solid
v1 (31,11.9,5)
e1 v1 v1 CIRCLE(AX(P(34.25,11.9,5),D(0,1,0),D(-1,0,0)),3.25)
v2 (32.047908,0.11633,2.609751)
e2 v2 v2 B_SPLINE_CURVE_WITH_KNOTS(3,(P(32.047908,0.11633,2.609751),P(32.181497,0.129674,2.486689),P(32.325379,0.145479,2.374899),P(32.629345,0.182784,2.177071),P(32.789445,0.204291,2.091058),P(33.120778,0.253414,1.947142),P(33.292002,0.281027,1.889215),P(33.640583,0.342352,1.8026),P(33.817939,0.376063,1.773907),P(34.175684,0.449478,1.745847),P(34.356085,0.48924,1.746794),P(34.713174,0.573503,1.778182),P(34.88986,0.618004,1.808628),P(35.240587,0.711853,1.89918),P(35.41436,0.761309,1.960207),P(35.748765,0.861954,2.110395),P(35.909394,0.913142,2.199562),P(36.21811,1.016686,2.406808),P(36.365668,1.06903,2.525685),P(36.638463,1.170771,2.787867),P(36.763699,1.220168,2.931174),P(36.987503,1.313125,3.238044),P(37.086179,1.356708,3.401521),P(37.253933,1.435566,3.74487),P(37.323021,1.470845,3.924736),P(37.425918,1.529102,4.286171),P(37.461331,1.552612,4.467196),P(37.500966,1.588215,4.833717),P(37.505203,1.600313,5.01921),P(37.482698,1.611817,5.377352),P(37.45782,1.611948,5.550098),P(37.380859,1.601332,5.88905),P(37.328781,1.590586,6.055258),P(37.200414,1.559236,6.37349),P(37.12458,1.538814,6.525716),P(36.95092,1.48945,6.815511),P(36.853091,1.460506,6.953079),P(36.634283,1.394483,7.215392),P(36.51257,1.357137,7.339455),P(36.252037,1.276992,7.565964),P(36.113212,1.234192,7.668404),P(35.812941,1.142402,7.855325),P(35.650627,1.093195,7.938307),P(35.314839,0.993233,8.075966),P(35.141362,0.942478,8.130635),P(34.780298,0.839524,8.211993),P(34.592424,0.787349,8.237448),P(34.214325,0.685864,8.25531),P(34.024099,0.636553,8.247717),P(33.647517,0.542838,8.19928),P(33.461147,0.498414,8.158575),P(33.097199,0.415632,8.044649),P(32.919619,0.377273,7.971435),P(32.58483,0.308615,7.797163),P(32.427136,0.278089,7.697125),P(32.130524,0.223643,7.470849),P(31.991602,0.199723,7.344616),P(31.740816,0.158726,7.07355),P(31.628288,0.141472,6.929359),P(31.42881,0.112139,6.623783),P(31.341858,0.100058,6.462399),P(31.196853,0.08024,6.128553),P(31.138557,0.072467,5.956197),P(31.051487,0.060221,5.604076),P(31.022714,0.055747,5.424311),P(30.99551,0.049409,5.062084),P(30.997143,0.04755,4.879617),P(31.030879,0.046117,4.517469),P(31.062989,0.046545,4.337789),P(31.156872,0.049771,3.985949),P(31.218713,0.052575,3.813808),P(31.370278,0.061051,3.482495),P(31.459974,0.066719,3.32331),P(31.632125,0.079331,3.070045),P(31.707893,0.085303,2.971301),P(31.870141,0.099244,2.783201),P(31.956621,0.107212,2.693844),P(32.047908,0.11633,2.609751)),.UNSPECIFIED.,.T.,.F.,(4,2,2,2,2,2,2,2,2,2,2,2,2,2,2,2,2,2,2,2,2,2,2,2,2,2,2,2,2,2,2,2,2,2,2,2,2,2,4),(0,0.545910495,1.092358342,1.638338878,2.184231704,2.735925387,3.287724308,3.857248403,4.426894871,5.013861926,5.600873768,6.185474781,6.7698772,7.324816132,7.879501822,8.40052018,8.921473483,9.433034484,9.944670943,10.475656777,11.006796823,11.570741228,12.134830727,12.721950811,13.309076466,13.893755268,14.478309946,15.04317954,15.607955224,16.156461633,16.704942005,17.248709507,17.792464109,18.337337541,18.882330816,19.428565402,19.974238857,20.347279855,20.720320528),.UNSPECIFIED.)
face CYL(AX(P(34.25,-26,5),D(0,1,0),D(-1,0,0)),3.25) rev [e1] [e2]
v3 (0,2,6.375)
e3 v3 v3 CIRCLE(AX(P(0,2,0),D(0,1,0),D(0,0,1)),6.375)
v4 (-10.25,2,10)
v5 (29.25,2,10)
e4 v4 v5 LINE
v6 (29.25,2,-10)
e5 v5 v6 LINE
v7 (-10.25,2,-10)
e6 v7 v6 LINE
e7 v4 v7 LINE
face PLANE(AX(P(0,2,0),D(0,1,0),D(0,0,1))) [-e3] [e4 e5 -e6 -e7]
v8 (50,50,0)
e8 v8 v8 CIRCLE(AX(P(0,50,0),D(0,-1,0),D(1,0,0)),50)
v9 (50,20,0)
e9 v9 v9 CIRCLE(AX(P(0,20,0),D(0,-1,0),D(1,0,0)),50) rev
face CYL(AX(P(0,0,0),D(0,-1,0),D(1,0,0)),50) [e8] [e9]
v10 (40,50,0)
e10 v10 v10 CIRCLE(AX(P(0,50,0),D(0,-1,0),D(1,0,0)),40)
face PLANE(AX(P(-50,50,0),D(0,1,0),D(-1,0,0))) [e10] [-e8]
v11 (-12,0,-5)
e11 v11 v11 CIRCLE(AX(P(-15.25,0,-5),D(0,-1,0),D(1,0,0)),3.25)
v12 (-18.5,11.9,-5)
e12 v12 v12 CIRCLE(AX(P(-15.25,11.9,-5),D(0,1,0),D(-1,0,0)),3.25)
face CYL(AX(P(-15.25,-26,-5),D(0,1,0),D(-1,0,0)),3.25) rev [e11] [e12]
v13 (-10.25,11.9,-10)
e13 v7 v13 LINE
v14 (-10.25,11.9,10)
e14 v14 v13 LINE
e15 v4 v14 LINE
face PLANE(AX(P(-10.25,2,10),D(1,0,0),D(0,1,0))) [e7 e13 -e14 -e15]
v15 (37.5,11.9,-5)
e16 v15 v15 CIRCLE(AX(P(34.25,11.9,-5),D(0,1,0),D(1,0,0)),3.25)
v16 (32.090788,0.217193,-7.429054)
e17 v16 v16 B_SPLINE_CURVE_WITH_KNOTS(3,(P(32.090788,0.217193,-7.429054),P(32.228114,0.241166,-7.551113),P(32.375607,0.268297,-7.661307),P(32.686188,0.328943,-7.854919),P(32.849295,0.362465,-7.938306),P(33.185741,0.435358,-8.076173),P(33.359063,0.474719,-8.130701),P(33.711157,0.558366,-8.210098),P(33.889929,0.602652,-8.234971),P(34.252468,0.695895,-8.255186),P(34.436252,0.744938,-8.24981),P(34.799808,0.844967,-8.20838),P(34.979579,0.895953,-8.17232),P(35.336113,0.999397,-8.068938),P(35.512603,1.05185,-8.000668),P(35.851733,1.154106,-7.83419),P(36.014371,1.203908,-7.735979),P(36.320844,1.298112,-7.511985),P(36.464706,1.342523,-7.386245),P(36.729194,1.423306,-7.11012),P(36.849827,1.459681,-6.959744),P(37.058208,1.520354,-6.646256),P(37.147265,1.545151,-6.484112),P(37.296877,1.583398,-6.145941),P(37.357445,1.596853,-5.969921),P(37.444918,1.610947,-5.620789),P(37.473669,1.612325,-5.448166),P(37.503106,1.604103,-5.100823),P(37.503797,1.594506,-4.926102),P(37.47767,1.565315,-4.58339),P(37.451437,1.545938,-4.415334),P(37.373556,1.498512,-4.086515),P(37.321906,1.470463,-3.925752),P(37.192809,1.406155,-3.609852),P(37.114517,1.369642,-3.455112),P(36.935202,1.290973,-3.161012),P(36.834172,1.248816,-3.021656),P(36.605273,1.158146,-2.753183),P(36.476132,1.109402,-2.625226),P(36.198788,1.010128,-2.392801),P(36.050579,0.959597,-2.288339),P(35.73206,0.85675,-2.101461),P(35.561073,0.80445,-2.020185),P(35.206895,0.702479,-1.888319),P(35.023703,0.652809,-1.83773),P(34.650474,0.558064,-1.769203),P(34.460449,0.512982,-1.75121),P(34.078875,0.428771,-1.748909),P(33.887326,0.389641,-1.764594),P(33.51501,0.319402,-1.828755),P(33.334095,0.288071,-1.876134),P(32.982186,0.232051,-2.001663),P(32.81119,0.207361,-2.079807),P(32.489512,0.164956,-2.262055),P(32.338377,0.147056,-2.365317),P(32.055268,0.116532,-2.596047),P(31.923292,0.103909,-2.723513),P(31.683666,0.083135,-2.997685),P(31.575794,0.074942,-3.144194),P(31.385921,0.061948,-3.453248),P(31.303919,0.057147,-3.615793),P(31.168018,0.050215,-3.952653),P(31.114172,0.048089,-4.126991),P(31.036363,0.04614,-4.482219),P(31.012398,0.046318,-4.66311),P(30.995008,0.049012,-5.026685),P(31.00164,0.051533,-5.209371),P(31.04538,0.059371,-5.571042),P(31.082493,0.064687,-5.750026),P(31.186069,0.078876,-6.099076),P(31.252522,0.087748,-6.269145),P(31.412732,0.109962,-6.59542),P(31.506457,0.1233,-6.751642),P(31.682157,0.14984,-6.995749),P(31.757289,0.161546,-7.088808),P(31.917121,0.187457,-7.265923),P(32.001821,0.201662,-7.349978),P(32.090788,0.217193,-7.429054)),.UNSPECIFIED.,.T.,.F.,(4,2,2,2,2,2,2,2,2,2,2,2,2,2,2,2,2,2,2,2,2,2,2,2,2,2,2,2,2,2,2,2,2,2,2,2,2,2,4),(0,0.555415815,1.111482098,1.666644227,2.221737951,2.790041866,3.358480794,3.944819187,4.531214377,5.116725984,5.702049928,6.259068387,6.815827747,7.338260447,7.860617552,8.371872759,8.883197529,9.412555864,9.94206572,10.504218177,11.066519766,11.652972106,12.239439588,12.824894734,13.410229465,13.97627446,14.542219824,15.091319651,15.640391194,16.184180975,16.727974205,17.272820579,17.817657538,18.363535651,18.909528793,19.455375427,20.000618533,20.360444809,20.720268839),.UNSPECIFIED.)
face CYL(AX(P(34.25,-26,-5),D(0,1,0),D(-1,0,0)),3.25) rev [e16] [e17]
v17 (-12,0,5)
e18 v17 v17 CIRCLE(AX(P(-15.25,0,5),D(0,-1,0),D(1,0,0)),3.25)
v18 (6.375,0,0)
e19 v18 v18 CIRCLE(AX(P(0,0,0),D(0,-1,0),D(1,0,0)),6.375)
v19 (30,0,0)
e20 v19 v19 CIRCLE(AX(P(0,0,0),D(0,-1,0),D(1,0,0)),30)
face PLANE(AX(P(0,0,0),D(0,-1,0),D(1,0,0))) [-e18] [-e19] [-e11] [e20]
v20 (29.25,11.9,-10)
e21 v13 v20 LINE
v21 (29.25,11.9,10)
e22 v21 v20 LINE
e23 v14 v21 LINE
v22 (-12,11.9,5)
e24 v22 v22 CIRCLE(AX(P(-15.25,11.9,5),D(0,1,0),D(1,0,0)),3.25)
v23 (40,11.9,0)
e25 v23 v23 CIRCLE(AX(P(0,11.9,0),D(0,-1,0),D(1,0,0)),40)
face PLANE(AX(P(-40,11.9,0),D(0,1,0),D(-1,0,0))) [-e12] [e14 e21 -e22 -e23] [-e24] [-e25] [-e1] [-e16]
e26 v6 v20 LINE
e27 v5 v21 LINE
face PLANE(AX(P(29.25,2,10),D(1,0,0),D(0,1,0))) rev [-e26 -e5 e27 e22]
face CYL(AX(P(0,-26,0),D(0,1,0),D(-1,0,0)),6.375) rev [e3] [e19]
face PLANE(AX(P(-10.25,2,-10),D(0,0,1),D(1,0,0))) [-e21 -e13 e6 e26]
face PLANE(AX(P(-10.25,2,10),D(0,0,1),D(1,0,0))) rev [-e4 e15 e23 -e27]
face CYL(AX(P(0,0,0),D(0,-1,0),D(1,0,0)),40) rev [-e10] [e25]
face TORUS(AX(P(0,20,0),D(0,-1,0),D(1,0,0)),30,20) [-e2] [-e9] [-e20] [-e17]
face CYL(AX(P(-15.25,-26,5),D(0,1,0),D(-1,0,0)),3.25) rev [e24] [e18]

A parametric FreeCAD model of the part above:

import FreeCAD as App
import Part
import Sketcher
from FreeCAD import Vector


def edges_at(feature, points):
    """Names of the edges that pass closest to the given points."""
    edges = feature.Shape.Edges
    near = lambda p: min(range(len(edges)), key=lambda i: edges[i].distToShape(Part.Vertex(*p))[0])
    return sorted({f"Edge{near(p) + 1}" for p in points})

doc = App.newDocument("Part")
body = doc.addObject("PartDesign::Body", "Body")

# Sketch on XY plane
sketch1 = body.newObject("Sketcher::SketchObject", "Sketch")
sketch1.AttachmentSupport = (doc.getObject("XY_Plane"), [""])
sketch1.MapMode = "FlatFace"
sketch1.addGeometry(Part.LineSegment(Vector(-50, 0, 0), Vector(0, 0, 0)), False)
sketch1.addGeometry(Part.LineSegment(Vector(0, 0, 0), Vector(0, 11.9, 0)), False)
sketch1.addGeometry(Part.LineSegment(Vector(0, 11.9, 0), Vector(-40, 11.9, 0)), False)
sketch1.addGeometry(Part.LineSegment(Vector(-40, 11.9, 0), Vector(-40, 50, 0)), False)
sketch1.addGeometry(Part.LineSegment(Vector(-40, 50, 0), Vector(-50, 50, 0)), False)
sketch1.addGeometry(Part.LineSegment(Vector(-50, 50, 0), Vector(-50, 0, 0)), False)
sketch1.addConstraint(Sketcher.Constraint("Coincident", 0, 2, 1, 1))
sketch1.addConstraint(Sketcher.Constraint("Coincident", 1, 2, 2, 1))
sketch1.addConstraint(Sketcher.Constraint("Coincident", 2, 2, 3, 1))
sketch1.addConstraint(Sketcher.Constraint("Coincident", 3, 2, 4, 1))
sketch1.addConstraint(Sketcher.Constraint("Coincident", 4, 2, 5, 1))
sketch1.addConstraint(Sketcher.Constraint("Coincident", 5, 2, 0, 1))
sketch1.addConstraint(Sketcher.Constraint("Horizontal", 0))
sketch1.addConstraint(Sketcher.Constraint("Vertical", 1))
sketch1.addConstraint(Sketcher.Constraint("Horizontal", 2))
sketch1.addConstraint(Sketcher.Constraint("Vertical", 3))
sketch1.addConstraint(Sketcher.Constraint("Horizontal", 4))
sketch1.addConstraint(Sketcher.Constraint("Vertical", 5))
sketch1.addConstraint(Sketcher.Constraint("Coincident", 0, 2, -1, 1))
sketch1.addConstraint(Sketcher.Constraint("Equal", 0, 5))
sketch1.addConstraint(Sketcher.Constraint("DistanceX", 0, 1, 0, 2, 50.0))
sketch1.addConstraint(Sketcher.Constraint("DistanceX", 2, 2, 2, 1, 40.0))
sketch1.addConstraint(Sketcher.Constraint("DistanceY", 1, 1, 1, 2, 11.9))
revolution = body.newObject("PartDesign::Revolution", "Revolution")
revolution.Profile = sketch1
revolution.ReferenceAxis = (sketch1, ["V_Axis"])
revolution.Angle = 360
doc.recompute()

fillet = body.newObject("PartDesign::Fillet", "Fillet")
fillet.Base = (revolution, edges_at(revolution, [(-50, 0, 0)]))
fillet.Radius = 20

# Sketch on XZ plane
sketch2 = body.newObject("Sketcher::SketchObject", "Sketch001")
sketch2.AttachmentSupport = (doc.getObject("XZ_Plane"), [""])
sketch2.MapMode = "FlatFace"
sketch2.AttachmentOffset = App.Placement(Vector(0, 0, -11.9), App.Rotation())
sketch2.addGeometry(Part.LineSegment(Vector(-10.25, -10, 0), Vector(-10.25, 10, 0)), False)
sketch2.addGeometry(Part.LineSegment(Vector(-10.25, 10, 0), Vector(29.25, 10, 0)), False)
sketch2.addGeometry(Part.LineSegment(Vector(29.25, 10, 0), Vector(29.25, -10, 0)), False)
sketch2.addGeometry(Part.LineSegment(Vector(29.25, -10, 0), Vector(-10.25, -10, 0)), False)
sketch2.addGeometry(Part.Circle(Vector(0, 0, 0), Vector(0, 0, 1), 6.375), False)
sketch2.addConstraint(Sketcher.Constraint("Coincident", 0, 2, 1, 1))
sketch2.addConstraint(Sketcher.Constraint("Coincident", 1, 2, 2, 1))
sketch2.addConstraint(Sketcher.Constraint("Coincident", 2, 2, 3, 1))
sketch2.addConstraint(Sketcher.Constraint("Coincident", 3, 2, 0, 1))
sketch2.addConstraint(Sketcher.Constraint("Vertical", 0))
sketch2.addConstraint(Sketcher.Constraint("Horizontal", 1))
sketch2.addConstraint(Sketcher.Constraint("Vertical", 2))
sketch2.addConstraint(Sketcher.Constraint("Horizontal", 3))
sketch2.addConstraint(Sketcher.Constraint("Coincident", 4, 3, -1, 1))
sketch2.addConstraint(Sketcher.Constraint("Diameter", 4, 12.75))
sketch2.addConstraint(Sketcher.Constraint("DistanceY", 0, 1, 0, 2, 20.0))
sketch2.addConstraint(Sketcher.Constraint("DistanceX", 1, 1, 1, 2, 39.5))
sketch2.addConstraint(Sketcher.Constraint("DistanceY", -1, 1, 0, 2, 10.0))
sketch2.addConstraint(Sketcher.Constraint("DistanceX", 0, 2, -1, 1, 10.25))
pocket1 = body.newObject("PartDesign::Pocket", "Pocket")
pocket1.Profile = sketch2
pocket1.Length = 9.9
pocket1.Reversed = True

# Sketch on XZ plane
sketch3 = body.newObject("Sketcher::SketchObject", "Sketch002")
sketch3.AttachmentSupport = (doc.getObject("XZ_Plane"), [""])
sketch3.MapMode = "FlatFace"
sketch3.AttachmentOffset = App.Placement(Vector(0, 0, -11.9), App.Rotation())
sketch3.addGeometry(Part.Circle(Vector(0, 0, 0), Vector(0, 0, 1), 6.375), False)
sketch3.addConstraint(Sketcher.Constraint("Coincident", 0, 3, -1, 1))
sketch3.addConstraint(Sketcher.Constraint("Diameter", 0, 12.75))
pocket2 = body.newObject("PartDesign::Pocket", "Pocket001")
pocket2.Profile = sketch3
pocket2.Length = 37.9
pocket2.Reversed = True

# Sketch on XZ plane
sketch4 = body.newObject("Sketcher::SketchObject", "Sketch003")
sketch4.AttachmentSupport = (doc.getObject("XZ_Plane"), [""])
sketch4.MapMode = "FlatFace"
sketch4.AttachmentOffset = App.Placement(Vector(0, 0, -11.9), App.Rotation())
sketch4.addGeometry(Part.Circle(Vector(-15.25, -5, 0), Vector(0, 0, 1), 3.25), False)
sketch4.addGeometry(Part.Circle(Vector(34.25, -5, 0), Vector(0, 0, 1), 3.25), False)
sketch4.addGeometry(Part.Circle(Vector(34.25, 5, 0), Vector(0, 0, 1), 3.25), False)
sketch4.addGeometry(Part.Circle(Vector(-15.25, 5, 0), Vector(0, 0, 1), 3.25), False)
sketch4.addConstraint(Sketcher.Constraint("Equal", 0, 1))
sketch4.addConstraint(Sketcher.Constraint("Equal", 1, 2))
sketch4.addConstraint(Sketcher.Constraint("Equal", 2, 3))
sketch4.addConstraint(Sketcher.Constraint("Symmetric", 1, 3, 2, 3, -1))
sketch4.addConstraint(Sketcher.Constraint("Symmetric", 0, 3, 3, 3, -1))
sketch4.addConstraint(Sketcher.Constraint("Horizontal", 0, 3, 1, 3))
sketch4.addConstraint(Sketcher.Constraint("Diameter", 0, 6.5))
sketch4.addConstraint(Sketcher.Constraint("DistanceY", 0, 3, -1, 1, 5.0))
sketch4.addConstraint(Sketcher.Constraint("DistanceX", 0, 3, 1, 3, 49.5))
sketch4.addConstraint(Sketcher.Constraint("DistanceX", 0, 3, -1, 1, 15.25))
pocket3 = body.newObject("PartDesign::Pocket", "Pocket002")
pocket3.Profile = sketch4
pocket3.Length = 37.9
pocket3.Reversed = True

doc.recompute()
